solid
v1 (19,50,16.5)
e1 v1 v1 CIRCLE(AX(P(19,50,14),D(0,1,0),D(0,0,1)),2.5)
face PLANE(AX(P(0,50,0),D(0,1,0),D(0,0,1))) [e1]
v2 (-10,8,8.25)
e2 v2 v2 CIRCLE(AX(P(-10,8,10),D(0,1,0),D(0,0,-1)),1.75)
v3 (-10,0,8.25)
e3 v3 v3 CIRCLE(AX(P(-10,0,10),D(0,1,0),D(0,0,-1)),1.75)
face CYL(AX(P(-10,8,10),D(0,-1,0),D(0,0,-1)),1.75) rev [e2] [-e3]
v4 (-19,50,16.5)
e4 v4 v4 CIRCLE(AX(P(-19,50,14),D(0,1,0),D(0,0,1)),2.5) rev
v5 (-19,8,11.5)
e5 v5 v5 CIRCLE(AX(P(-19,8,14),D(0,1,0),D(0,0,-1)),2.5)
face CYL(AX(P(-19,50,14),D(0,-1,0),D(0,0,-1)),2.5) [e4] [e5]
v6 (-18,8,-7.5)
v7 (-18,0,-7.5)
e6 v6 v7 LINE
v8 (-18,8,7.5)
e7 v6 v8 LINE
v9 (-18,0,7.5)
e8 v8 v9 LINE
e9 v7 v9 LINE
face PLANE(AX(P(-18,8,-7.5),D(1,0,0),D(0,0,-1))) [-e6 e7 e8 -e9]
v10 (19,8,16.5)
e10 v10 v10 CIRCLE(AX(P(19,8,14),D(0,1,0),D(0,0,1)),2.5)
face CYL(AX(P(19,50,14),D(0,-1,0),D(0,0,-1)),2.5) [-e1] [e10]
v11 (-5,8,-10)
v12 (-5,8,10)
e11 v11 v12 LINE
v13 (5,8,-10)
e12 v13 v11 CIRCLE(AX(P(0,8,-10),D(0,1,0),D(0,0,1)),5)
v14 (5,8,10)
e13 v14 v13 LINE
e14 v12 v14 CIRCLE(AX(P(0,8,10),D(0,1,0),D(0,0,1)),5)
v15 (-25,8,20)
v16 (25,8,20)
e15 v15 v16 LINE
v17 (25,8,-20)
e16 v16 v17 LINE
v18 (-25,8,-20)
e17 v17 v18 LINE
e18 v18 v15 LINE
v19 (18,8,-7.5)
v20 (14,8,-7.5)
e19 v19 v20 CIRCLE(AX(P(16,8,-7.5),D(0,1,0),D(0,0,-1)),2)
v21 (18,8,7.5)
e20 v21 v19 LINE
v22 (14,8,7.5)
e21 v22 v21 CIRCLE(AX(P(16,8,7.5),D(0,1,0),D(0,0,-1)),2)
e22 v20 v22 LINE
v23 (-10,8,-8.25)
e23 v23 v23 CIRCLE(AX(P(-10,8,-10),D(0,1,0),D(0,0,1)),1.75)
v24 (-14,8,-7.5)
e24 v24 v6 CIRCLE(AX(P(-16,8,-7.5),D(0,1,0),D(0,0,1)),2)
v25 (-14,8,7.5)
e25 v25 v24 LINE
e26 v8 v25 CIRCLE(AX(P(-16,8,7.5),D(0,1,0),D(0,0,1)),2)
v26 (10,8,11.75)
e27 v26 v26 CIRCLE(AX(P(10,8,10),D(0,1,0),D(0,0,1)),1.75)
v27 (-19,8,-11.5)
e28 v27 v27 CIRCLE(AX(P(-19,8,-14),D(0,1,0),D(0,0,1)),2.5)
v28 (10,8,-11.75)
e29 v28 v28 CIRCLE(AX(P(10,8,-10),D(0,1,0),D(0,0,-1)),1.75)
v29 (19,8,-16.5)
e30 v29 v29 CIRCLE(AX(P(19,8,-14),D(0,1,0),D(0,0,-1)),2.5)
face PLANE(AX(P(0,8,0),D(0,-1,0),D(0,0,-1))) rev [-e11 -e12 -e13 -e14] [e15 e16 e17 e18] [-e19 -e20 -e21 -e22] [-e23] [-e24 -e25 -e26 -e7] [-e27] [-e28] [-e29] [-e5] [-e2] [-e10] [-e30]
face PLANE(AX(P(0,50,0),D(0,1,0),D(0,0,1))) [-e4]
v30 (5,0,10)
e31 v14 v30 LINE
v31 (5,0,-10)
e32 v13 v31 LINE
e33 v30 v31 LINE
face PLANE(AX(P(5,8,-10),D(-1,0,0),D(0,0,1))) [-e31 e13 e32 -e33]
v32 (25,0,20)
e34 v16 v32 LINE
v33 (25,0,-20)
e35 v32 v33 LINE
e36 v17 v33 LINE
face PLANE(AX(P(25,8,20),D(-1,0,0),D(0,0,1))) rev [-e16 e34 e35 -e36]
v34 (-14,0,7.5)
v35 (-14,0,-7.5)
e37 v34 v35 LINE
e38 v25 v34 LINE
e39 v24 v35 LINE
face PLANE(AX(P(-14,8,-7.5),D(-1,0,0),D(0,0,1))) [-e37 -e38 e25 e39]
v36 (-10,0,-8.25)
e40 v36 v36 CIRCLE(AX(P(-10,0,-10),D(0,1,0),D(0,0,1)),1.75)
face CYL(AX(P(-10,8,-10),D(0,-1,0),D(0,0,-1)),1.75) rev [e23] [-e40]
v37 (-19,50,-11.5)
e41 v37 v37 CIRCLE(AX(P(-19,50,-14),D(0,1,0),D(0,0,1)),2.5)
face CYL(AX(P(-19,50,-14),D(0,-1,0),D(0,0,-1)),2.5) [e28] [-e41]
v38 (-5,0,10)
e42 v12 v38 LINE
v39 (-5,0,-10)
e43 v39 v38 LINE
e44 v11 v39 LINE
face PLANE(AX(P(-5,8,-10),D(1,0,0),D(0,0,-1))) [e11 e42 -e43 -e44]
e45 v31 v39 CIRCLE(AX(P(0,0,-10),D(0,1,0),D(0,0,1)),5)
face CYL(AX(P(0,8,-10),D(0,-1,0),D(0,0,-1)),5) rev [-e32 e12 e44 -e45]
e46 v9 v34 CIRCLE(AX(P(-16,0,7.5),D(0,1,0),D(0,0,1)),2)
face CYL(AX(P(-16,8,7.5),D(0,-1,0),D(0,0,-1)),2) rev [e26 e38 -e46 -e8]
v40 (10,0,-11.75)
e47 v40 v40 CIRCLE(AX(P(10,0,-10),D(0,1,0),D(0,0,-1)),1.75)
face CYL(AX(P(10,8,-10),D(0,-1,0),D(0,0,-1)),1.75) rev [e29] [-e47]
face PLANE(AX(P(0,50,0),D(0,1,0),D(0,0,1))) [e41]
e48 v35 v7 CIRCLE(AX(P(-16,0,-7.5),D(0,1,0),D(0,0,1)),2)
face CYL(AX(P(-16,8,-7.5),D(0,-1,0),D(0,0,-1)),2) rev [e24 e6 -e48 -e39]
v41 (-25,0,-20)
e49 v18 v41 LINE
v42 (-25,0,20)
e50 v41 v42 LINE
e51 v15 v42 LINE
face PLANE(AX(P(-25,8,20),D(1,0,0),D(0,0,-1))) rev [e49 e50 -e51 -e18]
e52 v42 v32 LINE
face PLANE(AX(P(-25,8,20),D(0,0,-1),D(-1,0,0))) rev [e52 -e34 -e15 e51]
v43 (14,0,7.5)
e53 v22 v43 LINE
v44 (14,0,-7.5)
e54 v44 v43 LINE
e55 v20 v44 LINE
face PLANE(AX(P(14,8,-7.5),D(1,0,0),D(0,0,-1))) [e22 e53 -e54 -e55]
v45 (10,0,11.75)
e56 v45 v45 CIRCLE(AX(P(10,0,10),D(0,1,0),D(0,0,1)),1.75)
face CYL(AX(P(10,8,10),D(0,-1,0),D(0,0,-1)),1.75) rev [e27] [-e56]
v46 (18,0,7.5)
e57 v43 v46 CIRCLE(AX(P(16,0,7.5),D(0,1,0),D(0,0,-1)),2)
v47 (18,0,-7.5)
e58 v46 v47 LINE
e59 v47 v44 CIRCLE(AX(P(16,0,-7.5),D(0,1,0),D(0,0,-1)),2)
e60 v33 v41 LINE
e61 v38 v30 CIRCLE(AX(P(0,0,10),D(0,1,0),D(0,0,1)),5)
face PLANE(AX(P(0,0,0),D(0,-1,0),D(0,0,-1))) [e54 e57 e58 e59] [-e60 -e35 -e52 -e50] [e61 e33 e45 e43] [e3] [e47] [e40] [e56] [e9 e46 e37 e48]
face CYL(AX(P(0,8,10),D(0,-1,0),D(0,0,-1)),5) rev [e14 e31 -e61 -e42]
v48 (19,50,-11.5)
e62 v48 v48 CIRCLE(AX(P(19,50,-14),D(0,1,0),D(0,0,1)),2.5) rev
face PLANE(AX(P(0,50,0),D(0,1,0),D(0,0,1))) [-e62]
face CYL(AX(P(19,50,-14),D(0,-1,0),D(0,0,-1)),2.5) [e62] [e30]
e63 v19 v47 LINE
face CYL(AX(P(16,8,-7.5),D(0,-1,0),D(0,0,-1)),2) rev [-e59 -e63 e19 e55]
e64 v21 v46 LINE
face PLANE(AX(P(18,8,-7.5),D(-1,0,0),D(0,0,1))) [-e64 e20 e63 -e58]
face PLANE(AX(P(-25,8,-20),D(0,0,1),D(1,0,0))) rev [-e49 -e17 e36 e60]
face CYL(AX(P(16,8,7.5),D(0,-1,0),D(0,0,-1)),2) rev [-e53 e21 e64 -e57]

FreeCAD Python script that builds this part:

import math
import FreeCAD as App
import Part
import Sketcher

V = App.Vector

doc = App.newDocument("Part")
params = doc.addObject("Spreadsheet::Sheet", "Params")
for row, (alias, value) in enumerate([
    ("sketch1_diameter", "5 mm"),
    ("sketch1_radius", "2 mm"),
    ("sketch1_radius2", "5 mm"),
    ("sketch1_diameter2", "3.5 mm"),
    ("sketch1_width", "50 mm"),
    ("pad1_length", "8 mm"),
    ("sketch2_diameter", "5 mm"),
    ("pad2_length", "3 mm"),
    ("sketch3_diameter", "5 mm"),
    ("pad3_length", "50 mm"),
], start=1):
    params.set(f"A{row}", alias)
    params.set(f"B{row}", "=" + value)
    params.setAlias(f"B{row}", alias)

body = doc.addObject("PartDesign::Body", "Body")

# Sketch on XZ plane
sketch1 = body.newObject("Sketcher::SketchObject", "Sketch")
sketch1.AttachmentSupport = (doc.getObject("XZ_Plane"), [""])
sketch1.MapMode = "FlatFace"
sketch1.addGeometry([
    Part.LineSegment(V(-25, -20, 0), V(-25, 20, 0)),  # 0
    Part.LineSegment(V(-25, 20, 0), V(25, 20, 0)),  # 1
    Part.LineSegment(V(25, 20, 0), V(25, -20, 0)),  # 2
    Part.LineSegment(V(25, -20, 0), V(-25, -20, 0)),  # 3
    Part.Circle(V(-19, 14, 0), V(0, 0, 1), 2.5),  # 4
    Part.Circle(V(-10, 10, 0), V(0, 0, 1), 1.8),  # 5
    Part.Circle(V(10, 10, 0), V(0, 0, 1), 1.8),  # 6
    Part.Circle(V(19, 14, 0), V(0, 0, 1), 2.5),  # 7
    Part.ArcOfCircle(Part.Circle(V(-16, -7.5, 0), V(0, 0, 1), 2), math.radians(180), math.radians(360)),  # 8
    Part.LineSegment(V(-14, -7.5, 0), V(-14, 7.5, 0)),  # 9
    Part.ArcOfCircle(Part.Circle(V(-16, 7.5, 0), V(0, 0, 1), 2), math.radians(0), math.radians(180)),  # 10
    Part.LineSegment(V(-18, 7.5, 0), V(-18, -7.5, 0)),  # 11
    Part.Circle(V(-19, -14, 0), V(0, 0, 1), 2.5),  # 12
    Part.Circle(V(-10, -10, 0), V(0, 0, 1), 1.8),  # 13
    Part.ArcOfCircle(Part.Circle(V(0, -10, 0), V(0, 0, 1), 5), math.radians(180), math.radians(360)),  # 14
    Part.LineSegment(V(5, -10, 0), V(5, 10, 0)),  # 15
    Part.ArcOfCircle(Part.Circle(V(0, 10, 0), V(0, 0, 1), 5), math.radians(0), math.radians(180)),  # 16
    Part.LineSegment(V(-5, 10, 0), V(-5, -10, 0)),  # 17
    Part.LineSegment(V(14, 7.5, 0), V(14, -7.5, 0)),  # 18
    Part.ArcOfCircle(Part.Circle(V(16, -7.5, 0), V(0, 0, 1), 2), math.radians(180), math.radians(360)),  # 19
    Part.LineSegment(V(18, -7.5, 0), V(18, 7.5, 0)),  # 20
    Part.ArcOfCircle(Part.Circle(V(16, 7.5, 0), V(0, 0, 1), 2), math.radians(0), math.radians(180)),  # 21
    Part.Circle(V(10, -10, 0), V(0, 0, 1), 1.8),  # 22
    Part.Circle(V(19, -14, 0), V(0, 0, 1), 2.5),  # 23
], False)
sketch1.addConstraint([
    Sketcher.Constraint("Coincident", 0, 2, 1, 1),
    Sketcher.Constraint("Coincident", 1, 2, 2, 1),
    Sketcher.Constraint("Coincident", 2, 2, 3, 1),
    Sketcher.Constraint("Coincident", 3, 2, 0, 1),
    Sketcher.Constraint("Tangent", 8, 2, 9, 1),
    Sketcher.Constraint("Tangent", 9, 2, 10, 1),
    Sketcher.Constraint("Tangent", 10, 2, 11, 1),
    Sketcher.Constraint("Tangent", 11, 2, 8, 1),
    Sketcher.Constraint("Tangent", 14, 2, 15, 1),
    Sketcher.Constraint("Tangent", 15, 2, 16, 1),
    Sketcher.Constraint("Tangent", 16, 2, 17, 1),
    Sketcher.Constraint("Tangent", 17, 2, 14, 1),
    Sketcher.Constraint("Tangent", 18, 2, 19, 1),
    Sketcher.Constraint("Tangent", 19, 2, 20, 1),
    Sketcher.Constraint("Tangent", 20, 2, 21, 1),
    Sketcher.Constraint("Tangent", 21, 2, 18, 1),
    Sketcher.Constraint("Vertical", 0),
    Sketcher.Constraint("Horizontal", 1),
    Sketcher.Constraint("Vertical", 2),
    Sketcher.Constraint("Horizontal", 3),
    Sketcher.Constraint("Vertical", 9),
    Sketcher.Constraint("Vertical", 11),
    Sketcher.Constraint("Vertical", 15),
    Sketcher.Constraint("Vertical", 17),
    Sketcher.Constraint("Vertical", 18),
    Sketcher.Constraint("Vertical", 20),
    Sketcher.Constraint("Equal", 5, 6),
    Sketcher.Constraint("Equal", 4, 7),
    Sketcher.Constraint("Equal", 7, 12),
    Sketcher.Constraint("Equal", 6, 13),
    Sketcher.Constraint("Equal", 10, 19),
    Sketcher.Constraint("Equal", 13, 22),
    Sketcher.Constraint("Equal", 12, 23),
    Sketcher.Constraint("Symmetric", 7, 3, 12, 3, -1, 1),
    Sketcher.Constraint("Symmetric", 6, 3, 13, 3, -1, 1),
    Sketcher.Constraint("Symmetric", 14, 3, 16, 3, -1, 1),
    Sketcher.Constraint("Symmetric", 10, 3, 19, 3, -1, 1),
    Sketcher.Constraint("Symmetric", 5, 3, 22, 3, -1, 1),
    Sketcher.Constraint("Symmetric", 4, 3, 23, 3, -1, 1),
    Sketcher.Constraint("Symmetric", 0, 2, 2, 2, -1, 1),
    Sketcher.Constraint("Symmetric", 5, 3, 6, 3, -2),
    Sketcher.Constraint("Symmetric", 4, 3, 7, 3, -2),
    Sketcher.Constraint("Horizontal", 13, 3, 14, 3),
    Sketcher.Constraint("Horizontal", 8, 3, 19, 3),
    Sketcher.Constraint("Horizontal", 10, 3, 21, 3),
    Sketcher.Constraint("Diameter", 4, 5.0),
    Sketcher.Constraint("Radius", 8, 2.0),
    Sketcher.Constraint("Radius", 14, 5.0),
    Sketcher.Constraint("Diameter", 5, 3.5),
    Sketcher.Constraint("DistanceX", 1, 1, 1, 2, 50.0),
    Sketcher.Constraint("DistanceY", 0, 1, 0, 2, 40.0),
    Sketcher.Constraint("DistanceY", 9, 1, 9, 2, 15.0),
    Sketcher.Constraint("DistanceY", 15, 1, 15, 2, 20.0),
    Sketcher.Constraint("DistanceX", 4, 3, -1, 1, 19.0),
    Sketcher.Constraint("DistanceY", -1, 1, 4, 3, 14.0),
    Sketcher.Constraint("DistanceX", 5, 3, -1, 1, 10.0),
    Sketcher.Constraint("DistanceX", 8, 3, -1, 1, 16.0),
])
sketch1.setExpression("Constraints[45]", "Params.sketch1_diameter")
sketch1.setExpression("Constraints[46]", "Params.sketch1_radius")
sketch1.setExpression("Constraints[47]", "Params.sketch1_radius2")
sketch1.setExpression("Constraints[48]", "Params.sketch1_diameter2")
sketch1.setExpression("Constraints[49]", "Params.sketch1_width")
pad1 = body.newObject("PartDesign::Pad", "Pad")
pad1.Profile = sketch1
pad1.setExpression("Length", "Params.pad1_length")
pad1.Reversed = True

# Sketch on XZ plane
sketch2 = body.newObject("Sketcher::SketchObject", "Sketch001")
sketch2.AttachmentSupport = (doc.getObject("XZ_Plane"), [""])
sketch2.MapMode = "FlatFace"
sketch2.addGeometry([
    Part.Circle(V(-19, -14, 0), V(0, 0, 1), 2.5),
    Part.Circle(V(19, -14, 0), V(0, 0, 1), 2.5),
    Part.Circle(V(-19, 14, 0), V(0, 0, 1), 2.5),
    Part.Circle(V(19, 14, 0), V(0, 0, 1), 2.5),
], False)
sketch2.addConstraint([
    Sketcher.Constraint("Equal", 0, 1),
    Sketcher.Constraint("Equal", 1, 2),
    Sketcher.Constraint("Equal", 2, 3),
    Sketcher.Constraint("Symmetric", 1, 3, 2, 3, -1, 1),
    Sketcher.Constraint("Symmetric", 0, 3, 3, 3, -1, 1),
    Sketcher.Constraint("Symmetric", 0, 3, 1, 3, -2),
    Sketcher.Constraint("Diameter", 0, 5.0),
    Sketcher.Constraint("DistanceX", 0, 3, -1, 1, 19.0),
    Sketcher.Constraint("DistanceY", 0, 3, -1, 1, 14.0),
])
sketch2.setExpression("Constraints[6]", "Params.sketch2_diameter")
pad2 = body.newObject("PartDesign::Pad", "Pad001")
pad2.Profile = sketch2
pad2.setExpression("Length", "Params.pad2_length")
pad2.Reversed = True

# Sketch on XZ plane
sketch3 = body.newObject("Sketcher::SketchObject", "Sketch002")
sketch3.AttachmentSupport = (doc.getObject("XZ_Plane"), [""])
sketch3.MapMode = "FlatFace"
sketch3.addGeometry([
    Part.Circle(V(-19, 14, 0), V(0, 0, 1), 2.5),
    Part.Circle(V(19, 14, 0), V(0, 0, 1), 2.5),
    Part.Circle(V(19, -14, 0), V(0, 0, 1), 2.5),
    Part.Circle(V(-19, -14, 0), V(0, 0, 1), 2.5),
], False)
sketch3.addConstraint([
    Sketcher.Constraint("Equal", 0, 1),
    Sketcher.Constraint("Equal", 1, 2),
    Sketcher.Constraint("Equal", 2, 3),
    Sketcher.Constraint("Symmetric", 0, 3, 2, 3, -1, 1),
    Sketcher.Constraint("Symmetric", 1, 3, 3, 3, -1, 1),
    Sketcher.Constraint("Symmetric", 0, 3, 1, 3, -2),
    Sketcher.Constraint("Diameter", 0, 5.0),
    Sketcher.Constraint("DistanceX", 0, 3, -1, 1, 19.0),
    Sketcher.Constraint("DistanceY", -1, 1, 0, 3, 14.0),
])
sketch3.setExpression("Constraints[6]", "Params.sketch3_diameter")
pad3 = body.newObject("PartDesign::Pad", "Pad002")
pad3.Profile = sketch3
pad3.setExpression("Length", "Params.pad3_length")
pad3.Reversed = True

doc.recompute()
